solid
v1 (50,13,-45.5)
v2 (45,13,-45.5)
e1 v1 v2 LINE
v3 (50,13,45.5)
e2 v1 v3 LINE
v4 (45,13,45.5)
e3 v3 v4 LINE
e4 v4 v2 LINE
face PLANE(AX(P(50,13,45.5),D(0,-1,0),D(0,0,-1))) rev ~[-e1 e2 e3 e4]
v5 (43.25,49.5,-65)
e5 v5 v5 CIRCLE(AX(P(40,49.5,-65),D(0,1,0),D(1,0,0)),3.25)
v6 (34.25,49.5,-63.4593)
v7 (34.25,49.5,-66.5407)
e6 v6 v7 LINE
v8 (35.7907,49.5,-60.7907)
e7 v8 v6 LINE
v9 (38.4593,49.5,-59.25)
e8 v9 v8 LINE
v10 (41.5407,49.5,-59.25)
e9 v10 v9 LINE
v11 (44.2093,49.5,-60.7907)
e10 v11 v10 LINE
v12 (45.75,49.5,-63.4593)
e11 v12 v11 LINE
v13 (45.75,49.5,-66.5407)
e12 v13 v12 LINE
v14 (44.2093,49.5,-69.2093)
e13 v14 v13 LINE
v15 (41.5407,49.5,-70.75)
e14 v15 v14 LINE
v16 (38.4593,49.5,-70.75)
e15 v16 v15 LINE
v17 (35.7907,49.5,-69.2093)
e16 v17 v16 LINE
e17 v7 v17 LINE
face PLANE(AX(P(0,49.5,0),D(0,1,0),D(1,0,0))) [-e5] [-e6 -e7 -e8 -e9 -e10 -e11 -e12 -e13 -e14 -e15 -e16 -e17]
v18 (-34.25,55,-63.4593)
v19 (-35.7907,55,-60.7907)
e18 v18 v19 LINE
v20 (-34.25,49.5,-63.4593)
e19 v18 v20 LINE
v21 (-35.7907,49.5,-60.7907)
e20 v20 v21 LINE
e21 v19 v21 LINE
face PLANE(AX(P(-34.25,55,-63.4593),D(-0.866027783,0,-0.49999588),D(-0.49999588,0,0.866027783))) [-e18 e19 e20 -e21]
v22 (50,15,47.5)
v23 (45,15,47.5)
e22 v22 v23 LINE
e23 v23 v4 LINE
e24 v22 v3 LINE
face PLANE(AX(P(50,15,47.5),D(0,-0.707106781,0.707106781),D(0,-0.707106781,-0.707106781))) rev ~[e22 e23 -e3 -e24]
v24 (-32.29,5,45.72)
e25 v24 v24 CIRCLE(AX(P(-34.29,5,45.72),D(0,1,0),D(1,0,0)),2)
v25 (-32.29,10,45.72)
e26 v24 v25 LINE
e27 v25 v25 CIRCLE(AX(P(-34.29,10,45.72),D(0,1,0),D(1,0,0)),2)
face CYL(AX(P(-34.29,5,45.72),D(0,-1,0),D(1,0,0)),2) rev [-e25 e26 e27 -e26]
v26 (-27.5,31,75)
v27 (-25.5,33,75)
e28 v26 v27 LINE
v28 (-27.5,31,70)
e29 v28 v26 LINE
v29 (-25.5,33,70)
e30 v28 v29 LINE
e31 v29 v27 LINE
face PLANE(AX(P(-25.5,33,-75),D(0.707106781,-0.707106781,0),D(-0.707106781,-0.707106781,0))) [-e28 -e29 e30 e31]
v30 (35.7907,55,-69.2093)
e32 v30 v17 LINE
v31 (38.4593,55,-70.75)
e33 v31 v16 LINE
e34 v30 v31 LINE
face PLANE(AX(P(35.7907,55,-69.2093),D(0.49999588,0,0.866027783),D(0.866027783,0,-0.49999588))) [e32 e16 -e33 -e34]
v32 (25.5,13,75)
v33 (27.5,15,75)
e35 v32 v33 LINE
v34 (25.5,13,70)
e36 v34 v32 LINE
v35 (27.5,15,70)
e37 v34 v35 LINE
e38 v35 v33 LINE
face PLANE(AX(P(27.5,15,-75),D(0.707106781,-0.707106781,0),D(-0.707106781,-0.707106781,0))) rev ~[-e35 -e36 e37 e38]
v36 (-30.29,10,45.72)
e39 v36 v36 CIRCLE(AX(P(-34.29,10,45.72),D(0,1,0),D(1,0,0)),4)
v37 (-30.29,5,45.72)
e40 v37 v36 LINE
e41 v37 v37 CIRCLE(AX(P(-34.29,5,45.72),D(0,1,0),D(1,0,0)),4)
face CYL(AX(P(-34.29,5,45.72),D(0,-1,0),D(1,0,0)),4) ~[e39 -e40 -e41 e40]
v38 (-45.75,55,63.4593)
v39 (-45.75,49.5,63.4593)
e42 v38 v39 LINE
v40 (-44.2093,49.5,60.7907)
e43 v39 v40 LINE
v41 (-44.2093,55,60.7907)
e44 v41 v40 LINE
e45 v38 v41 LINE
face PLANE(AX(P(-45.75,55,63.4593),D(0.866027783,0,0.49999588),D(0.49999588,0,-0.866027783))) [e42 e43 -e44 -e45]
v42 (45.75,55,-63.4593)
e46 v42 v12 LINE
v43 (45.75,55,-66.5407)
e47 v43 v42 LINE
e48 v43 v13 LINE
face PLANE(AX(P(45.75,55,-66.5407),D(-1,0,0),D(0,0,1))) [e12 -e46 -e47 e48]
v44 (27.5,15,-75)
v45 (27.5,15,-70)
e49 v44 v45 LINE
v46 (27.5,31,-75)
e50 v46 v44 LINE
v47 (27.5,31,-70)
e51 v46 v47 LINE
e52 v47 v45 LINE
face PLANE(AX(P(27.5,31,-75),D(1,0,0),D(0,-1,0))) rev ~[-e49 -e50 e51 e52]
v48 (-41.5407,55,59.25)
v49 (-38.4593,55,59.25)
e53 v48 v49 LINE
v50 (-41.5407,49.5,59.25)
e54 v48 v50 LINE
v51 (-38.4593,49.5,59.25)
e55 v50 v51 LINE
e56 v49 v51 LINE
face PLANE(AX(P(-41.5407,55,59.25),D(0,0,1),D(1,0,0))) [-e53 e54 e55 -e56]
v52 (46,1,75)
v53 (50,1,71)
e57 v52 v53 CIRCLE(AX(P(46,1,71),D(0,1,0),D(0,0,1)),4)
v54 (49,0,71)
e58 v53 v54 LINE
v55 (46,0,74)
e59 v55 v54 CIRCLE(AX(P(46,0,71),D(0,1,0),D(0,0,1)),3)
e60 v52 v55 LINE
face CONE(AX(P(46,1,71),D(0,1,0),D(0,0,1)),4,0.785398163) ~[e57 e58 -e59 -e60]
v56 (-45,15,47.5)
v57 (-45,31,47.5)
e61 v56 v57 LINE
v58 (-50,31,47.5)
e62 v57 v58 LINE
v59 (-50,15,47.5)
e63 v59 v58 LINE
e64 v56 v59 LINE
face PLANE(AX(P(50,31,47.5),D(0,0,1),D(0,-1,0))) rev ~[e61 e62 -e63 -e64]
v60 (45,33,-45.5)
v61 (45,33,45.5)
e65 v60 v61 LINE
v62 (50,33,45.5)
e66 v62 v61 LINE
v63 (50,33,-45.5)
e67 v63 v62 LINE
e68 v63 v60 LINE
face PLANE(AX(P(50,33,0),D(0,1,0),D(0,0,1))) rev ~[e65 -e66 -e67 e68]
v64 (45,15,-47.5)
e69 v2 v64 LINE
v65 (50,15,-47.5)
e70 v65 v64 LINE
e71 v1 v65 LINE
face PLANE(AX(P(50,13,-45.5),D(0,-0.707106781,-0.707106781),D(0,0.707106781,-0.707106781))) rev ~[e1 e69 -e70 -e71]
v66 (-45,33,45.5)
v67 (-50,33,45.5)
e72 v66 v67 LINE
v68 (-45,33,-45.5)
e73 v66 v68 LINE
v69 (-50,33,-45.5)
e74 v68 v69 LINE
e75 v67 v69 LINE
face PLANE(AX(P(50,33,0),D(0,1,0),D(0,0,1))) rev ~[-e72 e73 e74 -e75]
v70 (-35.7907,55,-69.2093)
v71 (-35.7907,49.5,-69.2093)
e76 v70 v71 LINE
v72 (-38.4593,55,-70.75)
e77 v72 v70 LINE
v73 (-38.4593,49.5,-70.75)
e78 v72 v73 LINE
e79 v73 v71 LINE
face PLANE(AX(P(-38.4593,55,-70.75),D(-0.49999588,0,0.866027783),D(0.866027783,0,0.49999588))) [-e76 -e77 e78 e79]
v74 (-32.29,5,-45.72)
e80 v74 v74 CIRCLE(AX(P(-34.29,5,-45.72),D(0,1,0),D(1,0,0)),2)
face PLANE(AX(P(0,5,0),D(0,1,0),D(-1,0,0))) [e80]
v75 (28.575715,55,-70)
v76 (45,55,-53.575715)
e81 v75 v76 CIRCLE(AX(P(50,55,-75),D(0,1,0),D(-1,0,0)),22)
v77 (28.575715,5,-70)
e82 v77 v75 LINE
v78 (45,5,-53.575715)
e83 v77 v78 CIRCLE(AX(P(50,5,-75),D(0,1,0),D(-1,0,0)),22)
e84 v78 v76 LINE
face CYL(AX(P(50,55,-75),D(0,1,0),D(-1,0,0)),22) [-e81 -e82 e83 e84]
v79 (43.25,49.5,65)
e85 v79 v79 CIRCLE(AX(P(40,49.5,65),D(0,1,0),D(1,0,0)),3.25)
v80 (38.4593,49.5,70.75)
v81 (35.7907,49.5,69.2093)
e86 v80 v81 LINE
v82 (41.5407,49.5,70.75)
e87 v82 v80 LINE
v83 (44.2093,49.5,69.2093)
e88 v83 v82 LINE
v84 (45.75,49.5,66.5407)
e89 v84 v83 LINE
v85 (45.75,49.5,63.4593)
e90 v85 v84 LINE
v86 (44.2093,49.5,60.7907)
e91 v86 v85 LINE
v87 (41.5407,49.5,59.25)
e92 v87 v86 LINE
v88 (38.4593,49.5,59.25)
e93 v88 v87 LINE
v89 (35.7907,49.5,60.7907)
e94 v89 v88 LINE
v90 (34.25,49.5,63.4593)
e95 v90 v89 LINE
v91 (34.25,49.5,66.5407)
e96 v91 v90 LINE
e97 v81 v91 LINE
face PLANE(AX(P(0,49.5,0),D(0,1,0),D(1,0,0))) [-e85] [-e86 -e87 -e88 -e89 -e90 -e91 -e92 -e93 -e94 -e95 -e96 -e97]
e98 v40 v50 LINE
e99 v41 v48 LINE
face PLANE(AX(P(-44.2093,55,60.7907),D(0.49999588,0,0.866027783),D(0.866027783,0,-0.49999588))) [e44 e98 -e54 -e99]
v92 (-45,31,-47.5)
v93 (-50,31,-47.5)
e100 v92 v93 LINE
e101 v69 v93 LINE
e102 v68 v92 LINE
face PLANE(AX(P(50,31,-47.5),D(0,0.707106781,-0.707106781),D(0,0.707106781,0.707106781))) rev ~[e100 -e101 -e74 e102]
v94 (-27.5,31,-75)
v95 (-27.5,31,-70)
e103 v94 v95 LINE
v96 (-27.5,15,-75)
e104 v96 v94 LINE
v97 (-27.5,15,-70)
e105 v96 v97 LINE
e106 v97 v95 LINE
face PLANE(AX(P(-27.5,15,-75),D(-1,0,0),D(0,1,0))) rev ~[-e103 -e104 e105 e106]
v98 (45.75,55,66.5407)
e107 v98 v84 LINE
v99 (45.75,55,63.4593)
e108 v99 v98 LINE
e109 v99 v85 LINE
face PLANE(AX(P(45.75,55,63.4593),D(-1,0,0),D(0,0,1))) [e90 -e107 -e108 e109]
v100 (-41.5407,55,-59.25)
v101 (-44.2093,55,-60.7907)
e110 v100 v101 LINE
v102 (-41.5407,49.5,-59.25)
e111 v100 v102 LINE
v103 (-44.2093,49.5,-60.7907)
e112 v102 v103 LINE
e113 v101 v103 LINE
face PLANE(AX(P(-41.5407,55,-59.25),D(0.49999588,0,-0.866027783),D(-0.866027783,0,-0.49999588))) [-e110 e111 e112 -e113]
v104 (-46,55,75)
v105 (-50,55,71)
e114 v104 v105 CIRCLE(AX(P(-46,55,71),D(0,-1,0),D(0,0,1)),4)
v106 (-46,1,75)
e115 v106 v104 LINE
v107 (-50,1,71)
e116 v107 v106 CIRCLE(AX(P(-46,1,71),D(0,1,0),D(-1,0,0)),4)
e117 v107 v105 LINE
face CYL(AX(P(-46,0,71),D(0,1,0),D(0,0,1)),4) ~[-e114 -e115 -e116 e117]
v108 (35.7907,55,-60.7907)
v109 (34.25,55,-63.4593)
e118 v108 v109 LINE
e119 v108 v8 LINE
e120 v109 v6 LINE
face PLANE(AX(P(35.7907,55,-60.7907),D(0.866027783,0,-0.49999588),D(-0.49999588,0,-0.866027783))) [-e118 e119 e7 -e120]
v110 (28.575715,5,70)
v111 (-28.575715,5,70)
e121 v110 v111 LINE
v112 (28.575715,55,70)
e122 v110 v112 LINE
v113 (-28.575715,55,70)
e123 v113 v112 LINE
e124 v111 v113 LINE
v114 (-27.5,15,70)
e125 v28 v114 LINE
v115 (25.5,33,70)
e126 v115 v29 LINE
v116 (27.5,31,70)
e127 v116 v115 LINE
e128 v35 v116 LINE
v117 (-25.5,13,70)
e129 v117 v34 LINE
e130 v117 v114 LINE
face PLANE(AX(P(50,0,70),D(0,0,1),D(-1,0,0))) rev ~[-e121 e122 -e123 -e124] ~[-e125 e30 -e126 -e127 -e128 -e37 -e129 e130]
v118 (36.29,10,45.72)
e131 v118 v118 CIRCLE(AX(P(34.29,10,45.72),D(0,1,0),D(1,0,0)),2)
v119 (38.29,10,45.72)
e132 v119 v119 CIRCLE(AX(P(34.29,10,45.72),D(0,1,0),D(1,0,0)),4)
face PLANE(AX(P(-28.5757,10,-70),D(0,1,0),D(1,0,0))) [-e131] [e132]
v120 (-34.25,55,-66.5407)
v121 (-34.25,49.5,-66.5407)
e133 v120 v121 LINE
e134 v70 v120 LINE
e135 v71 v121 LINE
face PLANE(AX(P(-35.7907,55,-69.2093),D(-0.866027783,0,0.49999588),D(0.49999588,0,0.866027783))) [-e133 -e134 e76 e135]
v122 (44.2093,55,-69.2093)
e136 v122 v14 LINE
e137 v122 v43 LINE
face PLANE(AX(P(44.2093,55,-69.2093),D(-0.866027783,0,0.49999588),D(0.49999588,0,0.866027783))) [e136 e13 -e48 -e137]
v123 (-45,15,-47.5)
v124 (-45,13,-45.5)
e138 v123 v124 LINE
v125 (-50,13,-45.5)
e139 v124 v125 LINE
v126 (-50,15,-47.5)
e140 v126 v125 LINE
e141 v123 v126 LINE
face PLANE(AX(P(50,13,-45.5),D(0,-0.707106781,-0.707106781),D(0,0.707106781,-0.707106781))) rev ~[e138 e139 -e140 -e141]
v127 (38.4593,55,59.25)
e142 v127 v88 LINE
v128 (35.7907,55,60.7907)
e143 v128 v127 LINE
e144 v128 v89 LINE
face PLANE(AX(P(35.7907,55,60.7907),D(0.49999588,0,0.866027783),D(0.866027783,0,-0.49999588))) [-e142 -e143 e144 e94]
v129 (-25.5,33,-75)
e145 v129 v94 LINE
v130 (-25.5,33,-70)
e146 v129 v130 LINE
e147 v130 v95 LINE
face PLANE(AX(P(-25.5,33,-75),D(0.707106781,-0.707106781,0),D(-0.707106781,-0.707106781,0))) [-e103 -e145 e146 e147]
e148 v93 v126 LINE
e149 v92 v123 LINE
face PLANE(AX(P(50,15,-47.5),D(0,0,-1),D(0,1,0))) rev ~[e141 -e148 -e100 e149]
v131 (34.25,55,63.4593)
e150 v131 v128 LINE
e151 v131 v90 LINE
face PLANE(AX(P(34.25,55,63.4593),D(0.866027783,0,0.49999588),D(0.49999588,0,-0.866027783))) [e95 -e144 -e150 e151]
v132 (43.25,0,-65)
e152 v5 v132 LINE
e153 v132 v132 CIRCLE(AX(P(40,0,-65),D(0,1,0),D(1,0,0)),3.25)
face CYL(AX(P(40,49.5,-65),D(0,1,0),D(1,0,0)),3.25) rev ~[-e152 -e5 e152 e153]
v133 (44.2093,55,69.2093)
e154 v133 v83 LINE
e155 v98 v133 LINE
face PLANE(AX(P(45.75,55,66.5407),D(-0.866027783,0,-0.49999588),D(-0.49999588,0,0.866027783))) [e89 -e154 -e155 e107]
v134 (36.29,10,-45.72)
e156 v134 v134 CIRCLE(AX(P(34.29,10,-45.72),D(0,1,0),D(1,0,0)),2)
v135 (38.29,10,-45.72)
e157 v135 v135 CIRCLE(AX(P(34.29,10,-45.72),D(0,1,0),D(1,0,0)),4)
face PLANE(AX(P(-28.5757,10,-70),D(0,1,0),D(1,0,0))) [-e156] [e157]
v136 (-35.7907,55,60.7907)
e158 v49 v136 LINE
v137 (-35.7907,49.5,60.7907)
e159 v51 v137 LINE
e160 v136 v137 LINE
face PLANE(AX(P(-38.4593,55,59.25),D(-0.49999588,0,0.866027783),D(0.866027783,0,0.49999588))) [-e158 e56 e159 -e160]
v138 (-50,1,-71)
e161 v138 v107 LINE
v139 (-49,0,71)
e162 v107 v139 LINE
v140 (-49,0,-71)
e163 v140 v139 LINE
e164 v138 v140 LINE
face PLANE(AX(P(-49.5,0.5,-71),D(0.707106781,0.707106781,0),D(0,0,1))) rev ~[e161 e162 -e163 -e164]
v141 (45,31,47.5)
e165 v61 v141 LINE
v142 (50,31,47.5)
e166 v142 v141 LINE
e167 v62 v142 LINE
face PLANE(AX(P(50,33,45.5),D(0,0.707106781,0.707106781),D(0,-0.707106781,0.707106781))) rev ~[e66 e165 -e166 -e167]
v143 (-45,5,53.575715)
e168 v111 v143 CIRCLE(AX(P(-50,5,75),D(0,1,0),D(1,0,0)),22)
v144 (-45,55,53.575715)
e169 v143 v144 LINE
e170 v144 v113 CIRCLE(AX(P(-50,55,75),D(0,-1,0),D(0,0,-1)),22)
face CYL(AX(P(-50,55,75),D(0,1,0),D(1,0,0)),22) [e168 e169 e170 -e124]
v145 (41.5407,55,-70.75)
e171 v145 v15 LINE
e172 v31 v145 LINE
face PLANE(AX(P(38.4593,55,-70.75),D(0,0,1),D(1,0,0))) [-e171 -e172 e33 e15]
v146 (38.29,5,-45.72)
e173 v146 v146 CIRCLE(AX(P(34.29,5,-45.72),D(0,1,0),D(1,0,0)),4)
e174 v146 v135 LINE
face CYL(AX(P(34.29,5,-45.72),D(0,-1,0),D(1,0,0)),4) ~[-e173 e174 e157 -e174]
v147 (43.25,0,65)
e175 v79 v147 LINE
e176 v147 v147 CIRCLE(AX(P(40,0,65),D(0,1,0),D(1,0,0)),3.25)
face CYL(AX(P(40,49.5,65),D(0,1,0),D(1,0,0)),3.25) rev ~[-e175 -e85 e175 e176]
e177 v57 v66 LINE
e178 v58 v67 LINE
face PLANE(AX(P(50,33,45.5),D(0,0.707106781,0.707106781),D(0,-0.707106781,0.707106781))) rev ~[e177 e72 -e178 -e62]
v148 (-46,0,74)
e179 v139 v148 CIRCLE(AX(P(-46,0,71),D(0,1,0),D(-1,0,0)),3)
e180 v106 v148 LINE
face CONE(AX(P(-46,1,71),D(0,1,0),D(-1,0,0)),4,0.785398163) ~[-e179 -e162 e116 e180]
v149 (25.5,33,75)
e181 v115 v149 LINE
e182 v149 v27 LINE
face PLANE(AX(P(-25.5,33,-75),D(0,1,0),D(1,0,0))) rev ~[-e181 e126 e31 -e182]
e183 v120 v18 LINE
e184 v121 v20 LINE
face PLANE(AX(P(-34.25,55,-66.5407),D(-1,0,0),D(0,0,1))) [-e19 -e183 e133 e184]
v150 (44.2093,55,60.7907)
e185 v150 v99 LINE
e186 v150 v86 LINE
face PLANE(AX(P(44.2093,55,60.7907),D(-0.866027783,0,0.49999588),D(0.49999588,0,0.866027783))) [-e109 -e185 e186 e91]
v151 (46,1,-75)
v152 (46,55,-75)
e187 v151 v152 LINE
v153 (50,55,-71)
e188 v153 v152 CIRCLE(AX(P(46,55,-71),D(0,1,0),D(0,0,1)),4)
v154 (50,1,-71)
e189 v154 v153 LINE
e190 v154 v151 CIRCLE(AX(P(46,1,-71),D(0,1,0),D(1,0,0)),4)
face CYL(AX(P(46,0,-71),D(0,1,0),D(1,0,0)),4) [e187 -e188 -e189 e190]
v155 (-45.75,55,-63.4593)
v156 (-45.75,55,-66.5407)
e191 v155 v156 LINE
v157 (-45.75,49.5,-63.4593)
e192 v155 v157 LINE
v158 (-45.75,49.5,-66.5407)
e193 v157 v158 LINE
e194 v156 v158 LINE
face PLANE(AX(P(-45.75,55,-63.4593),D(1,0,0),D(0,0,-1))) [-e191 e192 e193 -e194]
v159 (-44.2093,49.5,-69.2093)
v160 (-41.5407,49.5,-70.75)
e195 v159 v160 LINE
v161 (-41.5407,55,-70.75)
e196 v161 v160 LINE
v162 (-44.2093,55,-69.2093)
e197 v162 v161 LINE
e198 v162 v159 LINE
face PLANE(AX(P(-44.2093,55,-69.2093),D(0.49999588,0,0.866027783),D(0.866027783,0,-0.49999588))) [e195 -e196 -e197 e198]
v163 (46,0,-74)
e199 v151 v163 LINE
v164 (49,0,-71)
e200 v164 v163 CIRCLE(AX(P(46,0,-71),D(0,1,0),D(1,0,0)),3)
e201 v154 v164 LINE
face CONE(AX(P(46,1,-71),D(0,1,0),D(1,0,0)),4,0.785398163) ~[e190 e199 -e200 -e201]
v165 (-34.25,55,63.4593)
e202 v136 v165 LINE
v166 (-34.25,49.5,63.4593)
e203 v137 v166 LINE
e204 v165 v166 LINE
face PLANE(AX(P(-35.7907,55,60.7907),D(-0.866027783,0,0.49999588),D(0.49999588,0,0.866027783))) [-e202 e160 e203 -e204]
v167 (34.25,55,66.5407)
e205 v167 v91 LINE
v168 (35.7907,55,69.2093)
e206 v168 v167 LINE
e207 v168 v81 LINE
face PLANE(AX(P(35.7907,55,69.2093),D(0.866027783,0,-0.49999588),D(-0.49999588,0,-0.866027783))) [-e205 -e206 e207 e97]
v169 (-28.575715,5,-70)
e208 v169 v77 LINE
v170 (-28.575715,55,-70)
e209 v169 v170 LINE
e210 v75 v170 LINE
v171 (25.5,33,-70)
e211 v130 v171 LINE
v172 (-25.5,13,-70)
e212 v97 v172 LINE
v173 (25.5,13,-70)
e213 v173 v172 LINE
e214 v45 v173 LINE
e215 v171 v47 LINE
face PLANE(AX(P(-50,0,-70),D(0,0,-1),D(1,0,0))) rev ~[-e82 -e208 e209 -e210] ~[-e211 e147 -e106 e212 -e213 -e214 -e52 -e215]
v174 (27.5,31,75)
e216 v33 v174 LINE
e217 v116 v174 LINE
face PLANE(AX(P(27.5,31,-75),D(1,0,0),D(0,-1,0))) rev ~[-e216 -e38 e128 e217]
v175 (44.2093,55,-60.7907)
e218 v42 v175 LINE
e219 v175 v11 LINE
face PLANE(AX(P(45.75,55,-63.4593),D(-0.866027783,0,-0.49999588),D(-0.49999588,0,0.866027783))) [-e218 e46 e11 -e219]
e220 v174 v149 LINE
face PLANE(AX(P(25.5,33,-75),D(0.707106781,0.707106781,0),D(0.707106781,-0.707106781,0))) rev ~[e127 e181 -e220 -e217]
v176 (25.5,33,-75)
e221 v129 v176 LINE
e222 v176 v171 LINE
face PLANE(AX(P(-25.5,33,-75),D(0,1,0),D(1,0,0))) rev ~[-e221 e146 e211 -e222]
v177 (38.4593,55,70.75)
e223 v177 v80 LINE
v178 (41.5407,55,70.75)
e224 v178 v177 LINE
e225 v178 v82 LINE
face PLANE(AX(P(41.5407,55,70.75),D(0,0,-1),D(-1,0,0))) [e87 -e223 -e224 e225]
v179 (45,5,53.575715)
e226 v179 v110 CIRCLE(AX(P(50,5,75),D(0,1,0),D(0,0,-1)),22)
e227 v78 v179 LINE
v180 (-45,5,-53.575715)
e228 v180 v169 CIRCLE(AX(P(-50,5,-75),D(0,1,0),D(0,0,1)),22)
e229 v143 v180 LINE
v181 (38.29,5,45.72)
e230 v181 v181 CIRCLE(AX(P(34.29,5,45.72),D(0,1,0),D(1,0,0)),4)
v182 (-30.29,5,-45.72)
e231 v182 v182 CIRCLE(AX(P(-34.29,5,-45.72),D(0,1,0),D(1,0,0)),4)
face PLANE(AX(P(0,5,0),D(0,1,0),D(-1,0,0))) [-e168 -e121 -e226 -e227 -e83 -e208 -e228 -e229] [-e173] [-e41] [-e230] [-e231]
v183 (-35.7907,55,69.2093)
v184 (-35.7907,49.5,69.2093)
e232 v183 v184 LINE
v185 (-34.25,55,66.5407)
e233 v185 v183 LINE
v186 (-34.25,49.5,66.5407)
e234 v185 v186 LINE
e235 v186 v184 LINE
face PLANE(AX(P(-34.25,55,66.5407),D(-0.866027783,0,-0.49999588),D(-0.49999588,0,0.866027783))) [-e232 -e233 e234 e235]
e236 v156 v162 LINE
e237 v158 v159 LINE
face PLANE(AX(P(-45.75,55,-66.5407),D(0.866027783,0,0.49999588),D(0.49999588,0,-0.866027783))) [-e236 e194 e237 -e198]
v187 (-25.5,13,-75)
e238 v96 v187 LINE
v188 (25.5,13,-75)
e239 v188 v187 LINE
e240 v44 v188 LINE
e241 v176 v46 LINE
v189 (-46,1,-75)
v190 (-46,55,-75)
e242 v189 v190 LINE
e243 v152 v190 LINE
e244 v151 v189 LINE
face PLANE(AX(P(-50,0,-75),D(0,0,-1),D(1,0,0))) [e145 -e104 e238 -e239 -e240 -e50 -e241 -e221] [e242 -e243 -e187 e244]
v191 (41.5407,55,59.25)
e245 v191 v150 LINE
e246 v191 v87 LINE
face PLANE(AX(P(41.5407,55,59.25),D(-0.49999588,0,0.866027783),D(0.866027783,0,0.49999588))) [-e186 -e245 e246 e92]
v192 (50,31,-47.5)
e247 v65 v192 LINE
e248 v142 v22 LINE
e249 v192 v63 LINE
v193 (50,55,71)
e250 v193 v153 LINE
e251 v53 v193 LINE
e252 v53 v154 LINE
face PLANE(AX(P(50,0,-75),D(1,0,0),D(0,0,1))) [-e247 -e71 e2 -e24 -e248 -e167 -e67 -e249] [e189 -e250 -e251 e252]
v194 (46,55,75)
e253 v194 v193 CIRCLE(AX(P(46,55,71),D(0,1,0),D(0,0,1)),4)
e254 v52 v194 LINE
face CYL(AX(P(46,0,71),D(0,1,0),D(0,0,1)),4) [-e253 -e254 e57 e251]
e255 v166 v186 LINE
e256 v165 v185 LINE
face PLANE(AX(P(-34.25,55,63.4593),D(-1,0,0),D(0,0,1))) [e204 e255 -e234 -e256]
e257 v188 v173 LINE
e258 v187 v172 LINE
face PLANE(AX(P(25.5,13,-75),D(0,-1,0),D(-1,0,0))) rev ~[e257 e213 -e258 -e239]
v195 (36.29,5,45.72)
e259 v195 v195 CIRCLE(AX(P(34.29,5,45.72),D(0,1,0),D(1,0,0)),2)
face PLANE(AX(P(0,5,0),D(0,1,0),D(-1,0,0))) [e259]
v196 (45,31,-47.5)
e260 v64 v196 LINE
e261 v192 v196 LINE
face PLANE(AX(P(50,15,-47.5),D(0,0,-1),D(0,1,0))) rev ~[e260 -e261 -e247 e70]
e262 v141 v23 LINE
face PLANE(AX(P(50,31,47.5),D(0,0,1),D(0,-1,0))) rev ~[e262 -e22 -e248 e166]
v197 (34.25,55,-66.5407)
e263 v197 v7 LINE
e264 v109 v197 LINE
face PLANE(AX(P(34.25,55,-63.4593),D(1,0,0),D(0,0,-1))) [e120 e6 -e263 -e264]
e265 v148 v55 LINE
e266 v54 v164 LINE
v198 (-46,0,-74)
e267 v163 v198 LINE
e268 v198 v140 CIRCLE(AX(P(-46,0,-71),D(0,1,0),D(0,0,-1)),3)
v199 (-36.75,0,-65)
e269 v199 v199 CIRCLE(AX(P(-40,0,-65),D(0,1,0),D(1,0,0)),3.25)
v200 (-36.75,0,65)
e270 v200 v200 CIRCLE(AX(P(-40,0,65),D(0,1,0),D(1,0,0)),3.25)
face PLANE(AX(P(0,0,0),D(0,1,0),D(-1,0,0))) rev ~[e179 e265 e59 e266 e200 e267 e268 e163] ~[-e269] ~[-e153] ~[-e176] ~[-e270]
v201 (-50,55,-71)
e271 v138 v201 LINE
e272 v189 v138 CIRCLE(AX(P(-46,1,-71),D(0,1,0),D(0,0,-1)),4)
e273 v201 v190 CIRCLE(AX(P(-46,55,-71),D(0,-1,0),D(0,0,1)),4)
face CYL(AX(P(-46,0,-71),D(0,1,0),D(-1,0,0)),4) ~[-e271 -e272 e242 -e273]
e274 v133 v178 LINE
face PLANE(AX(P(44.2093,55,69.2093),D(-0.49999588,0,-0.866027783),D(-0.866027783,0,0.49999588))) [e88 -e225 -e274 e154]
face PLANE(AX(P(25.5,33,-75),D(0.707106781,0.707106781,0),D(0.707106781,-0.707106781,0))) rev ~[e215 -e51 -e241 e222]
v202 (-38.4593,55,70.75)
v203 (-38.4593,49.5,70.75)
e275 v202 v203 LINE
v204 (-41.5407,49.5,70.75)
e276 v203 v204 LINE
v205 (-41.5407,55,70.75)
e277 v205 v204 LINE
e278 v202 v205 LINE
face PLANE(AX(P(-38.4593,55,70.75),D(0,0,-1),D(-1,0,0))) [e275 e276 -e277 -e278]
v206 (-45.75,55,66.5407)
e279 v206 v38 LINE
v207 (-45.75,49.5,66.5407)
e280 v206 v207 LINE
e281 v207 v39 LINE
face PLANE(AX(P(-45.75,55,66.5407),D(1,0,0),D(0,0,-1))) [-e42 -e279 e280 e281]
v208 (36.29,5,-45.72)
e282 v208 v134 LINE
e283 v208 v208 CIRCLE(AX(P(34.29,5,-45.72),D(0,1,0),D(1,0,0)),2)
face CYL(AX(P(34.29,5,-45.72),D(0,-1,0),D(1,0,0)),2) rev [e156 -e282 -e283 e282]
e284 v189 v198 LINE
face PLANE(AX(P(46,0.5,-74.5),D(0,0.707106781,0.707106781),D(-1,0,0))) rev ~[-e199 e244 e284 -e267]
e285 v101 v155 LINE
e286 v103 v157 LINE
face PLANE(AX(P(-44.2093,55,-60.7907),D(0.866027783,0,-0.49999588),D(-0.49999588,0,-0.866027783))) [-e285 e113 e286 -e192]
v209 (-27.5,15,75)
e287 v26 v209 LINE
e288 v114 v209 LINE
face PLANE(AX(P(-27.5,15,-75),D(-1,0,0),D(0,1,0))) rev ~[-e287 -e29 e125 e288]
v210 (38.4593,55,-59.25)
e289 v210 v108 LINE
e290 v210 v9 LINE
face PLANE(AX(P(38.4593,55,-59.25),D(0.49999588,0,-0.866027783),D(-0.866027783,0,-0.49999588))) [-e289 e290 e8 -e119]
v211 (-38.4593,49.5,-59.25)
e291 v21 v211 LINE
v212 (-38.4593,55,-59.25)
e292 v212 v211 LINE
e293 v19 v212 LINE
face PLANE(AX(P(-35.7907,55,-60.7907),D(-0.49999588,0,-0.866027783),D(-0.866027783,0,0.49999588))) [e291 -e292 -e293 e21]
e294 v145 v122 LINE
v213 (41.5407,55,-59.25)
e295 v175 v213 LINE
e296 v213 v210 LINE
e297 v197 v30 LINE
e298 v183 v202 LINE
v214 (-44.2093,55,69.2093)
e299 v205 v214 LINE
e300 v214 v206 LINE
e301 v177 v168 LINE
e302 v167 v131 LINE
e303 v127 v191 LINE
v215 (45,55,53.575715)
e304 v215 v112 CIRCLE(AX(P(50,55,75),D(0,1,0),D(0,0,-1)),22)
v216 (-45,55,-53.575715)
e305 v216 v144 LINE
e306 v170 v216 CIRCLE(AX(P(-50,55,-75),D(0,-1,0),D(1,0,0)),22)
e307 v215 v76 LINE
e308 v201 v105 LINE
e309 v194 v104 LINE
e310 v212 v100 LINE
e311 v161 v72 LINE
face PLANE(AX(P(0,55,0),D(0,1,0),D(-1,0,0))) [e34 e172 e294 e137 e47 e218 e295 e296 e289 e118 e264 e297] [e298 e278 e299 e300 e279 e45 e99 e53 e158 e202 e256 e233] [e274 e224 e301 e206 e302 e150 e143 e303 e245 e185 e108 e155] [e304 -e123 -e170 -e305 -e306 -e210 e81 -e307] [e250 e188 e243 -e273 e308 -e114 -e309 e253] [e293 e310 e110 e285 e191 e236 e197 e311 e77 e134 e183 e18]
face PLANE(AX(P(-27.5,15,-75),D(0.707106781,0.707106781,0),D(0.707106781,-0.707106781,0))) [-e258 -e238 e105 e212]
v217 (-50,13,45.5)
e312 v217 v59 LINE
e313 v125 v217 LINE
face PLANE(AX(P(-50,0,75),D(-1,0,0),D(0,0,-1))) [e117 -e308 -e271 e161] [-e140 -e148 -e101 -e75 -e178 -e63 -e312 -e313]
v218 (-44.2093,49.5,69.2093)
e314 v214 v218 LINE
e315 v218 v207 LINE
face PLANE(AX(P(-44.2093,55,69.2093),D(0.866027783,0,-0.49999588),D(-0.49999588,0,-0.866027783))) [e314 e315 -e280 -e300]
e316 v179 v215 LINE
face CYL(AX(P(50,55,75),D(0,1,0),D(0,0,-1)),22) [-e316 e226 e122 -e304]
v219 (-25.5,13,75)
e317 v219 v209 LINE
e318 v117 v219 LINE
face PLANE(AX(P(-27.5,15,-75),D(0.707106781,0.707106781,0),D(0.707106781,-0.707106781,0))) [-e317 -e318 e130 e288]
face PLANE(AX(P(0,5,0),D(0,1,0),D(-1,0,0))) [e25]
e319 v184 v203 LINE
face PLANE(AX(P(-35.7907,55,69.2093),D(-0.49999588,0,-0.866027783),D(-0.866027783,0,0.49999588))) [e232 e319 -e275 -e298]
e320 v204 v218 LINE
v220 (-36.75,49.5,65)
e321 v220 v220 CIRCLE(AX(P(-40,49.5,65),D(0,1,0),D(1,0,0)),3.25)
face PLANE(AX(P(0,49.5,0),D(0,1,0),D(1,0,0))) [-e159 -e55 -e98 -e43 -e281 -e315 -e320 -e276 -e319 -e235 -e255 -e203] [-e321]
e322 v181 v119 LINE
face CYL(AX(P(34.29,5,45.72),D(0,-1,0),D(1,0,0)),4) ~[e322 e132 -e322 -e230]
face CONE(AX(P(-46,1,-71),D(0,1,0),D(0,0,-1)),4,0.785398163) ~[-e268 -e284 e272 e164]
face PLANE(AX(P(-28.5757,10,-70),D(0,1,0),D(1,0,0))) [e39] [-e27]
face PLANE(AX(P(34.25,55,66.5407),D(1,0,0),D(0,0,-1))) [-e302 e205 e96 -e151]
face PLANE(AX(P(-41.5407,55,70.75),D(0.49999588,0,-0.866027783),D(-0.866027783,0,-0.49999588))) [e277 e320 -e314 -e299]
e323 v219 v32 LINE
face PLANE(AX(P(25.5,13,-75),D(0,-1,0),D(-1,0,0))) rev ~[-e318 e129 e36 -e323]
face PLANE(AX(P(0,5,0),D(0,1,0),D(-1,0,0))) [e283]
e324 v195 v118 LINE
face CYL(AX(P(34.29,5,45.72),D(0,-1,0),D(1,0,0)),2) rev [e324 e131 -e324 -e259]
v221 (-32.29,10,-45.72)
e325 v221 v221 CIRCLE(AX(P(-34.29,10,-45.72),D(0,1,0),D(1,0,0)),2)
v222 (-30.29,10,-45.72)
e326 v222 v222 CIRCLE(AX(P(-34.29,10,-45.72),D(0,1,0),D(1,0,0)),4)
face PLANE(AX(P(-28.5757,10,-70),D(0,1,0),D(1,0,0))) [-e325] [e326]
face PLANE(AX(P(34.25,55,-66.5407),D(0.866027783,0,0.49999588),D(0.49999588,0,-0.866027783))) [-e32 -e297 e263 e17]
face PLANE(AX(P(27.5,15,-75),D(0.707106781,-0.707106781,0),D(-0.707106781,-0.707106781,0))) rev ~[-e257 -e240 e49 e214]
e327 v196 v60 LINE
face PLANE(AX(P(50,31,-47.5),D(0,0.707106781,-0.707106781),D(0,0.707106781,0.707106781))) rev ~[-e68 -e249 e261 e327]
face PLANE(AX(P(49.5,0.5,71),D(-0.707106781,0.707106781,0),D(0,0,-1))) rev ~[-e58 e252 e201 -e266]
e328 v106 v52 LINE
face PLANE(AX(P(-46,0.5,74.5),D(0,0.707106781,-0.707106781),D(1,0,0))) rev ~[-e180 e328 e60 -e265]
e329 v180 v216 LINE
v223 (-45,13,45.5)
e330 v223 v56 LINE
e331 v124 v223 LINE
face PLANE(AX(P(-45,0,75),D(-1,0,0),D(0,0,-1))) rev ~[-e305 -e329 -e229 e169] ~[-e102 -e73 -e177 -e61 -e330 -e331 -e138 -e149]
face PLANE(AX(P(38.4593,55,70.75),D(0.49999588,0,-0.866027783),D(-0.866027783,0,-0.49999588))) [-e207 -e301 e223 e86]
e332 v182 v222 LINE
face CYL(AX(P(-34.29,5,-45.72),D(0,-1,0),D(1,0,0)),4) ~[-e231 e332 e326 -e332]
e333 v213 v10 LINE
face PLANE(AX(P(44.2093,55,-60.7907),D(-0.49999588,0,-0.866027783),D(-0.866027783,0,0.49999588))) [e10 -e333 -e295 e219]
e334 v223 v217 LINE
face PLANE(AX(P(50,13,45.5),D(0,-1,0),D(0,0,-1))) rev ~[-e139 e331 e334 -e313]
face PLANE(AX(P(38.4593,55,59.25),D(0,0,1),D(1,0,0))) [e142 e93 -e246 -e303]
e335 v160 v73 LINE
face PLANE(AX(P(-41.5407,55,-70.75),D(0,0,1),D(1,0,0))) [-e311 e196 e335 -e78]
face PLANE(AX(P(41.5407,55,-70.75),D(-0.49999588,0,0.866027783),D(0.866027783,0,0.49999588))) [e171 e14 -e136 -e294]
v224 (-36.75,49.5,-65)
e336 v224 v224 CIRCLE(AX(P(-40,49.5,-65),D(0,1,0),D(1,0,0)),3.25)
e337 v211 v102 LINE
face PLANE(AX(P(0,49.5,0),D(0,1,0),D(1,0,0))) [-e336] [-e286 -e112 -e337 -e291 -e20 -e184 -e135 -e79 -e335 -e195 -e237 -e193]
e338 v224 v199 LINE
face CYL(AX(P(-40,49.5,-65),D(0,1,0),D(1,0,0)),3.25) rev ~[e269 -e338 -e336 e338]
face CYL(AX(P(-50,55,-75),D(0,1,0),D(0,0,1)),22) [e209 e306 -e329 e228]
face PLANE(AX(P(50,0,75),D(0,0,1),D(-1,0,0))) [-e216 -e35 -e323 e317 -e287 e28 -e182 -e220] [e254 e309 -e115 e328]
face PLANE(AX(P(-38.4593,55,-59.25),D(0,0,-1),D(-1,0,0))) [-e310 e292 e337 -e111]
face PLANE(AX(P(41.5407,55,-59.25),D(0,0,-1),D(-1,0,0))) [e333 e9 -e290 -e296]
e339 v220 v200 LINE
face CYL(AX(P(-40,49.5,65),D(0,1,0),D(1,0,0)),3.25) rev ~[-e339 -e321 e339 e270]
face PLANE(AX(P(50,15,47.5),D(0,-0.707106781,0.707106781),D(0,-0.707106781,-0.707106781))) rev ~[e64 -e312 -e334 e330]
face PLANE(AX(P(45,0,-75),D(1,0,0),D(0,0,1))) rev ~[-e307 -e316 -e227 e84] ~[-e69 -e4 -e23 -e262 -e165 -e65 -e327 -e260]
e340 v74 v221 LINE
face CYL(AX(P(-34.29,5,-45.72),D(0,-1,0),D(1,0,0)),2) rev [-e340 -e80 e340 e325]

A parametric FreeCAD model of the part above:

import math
import FreeCAD as App
import Part
import Sketcher

V = App.Vector
Q = App.Units.Quantity


def edges_at(feature, points):
    """Names of the edges that pass closest to the given points."""
    edges = feature.Shape.Edges
    near = lambda p: min(range(len(edges)), key=lambda i: edges[i].distToShape(Part.Vertex(*p))[0])
    return sorted({f"Edge{near(p) + 1}" for p in points})


def faces_at(feature, points):
    """Names of the faces that lie closest to the given points."""
    faces = feature.Shape.Faces
    near = lambda p: min(range(len(faces)), key=lambda i: faces[i].distToShape(Part.Vertex(*p))[0])
    return sorted({f"Face{near(p) + 1}" for p in points})

doc = App.newDocument("Part")
body = doc.addObject("PartDesign::Body", "Body")

# Sketch on XZ plane
sketch1 = doc.addObject("Sketcher::SketchObject", "Sketch")
body.addObject(sketch1)
sketch1.AttachmentSupport = (doc.XZ_Plane, [""])
sketch1.MapMode = "FlatFace"
sketch1.addGeometry([
    Part.LineSegment(V(-50, 75, 0), V(50, 75, 0)),
    Part.LineSegment(V(50, 75, 0), V(50, -75, 0)),
    Part.LineSegment(V(50, -75, 0), V(-50, -75, 0)),
    Part.LineSegment(V(-50, -75, 0), V(-50, 75, 0)),
], False)
sketch1.addConstraint([
    Sketcher.Constraint("Coincident", 0, 2, 1, 1),
    Sketcher.Constraint("Coincident", 1, 2, 2, 1),
    Sketcher.Constraint("Coincident", 2, 2, 3, 1),
    Sketcher.Constraint("Coincident", 3, 2, 0, 1),
    Sketcher.Constraint("Horizontal", 0),
    Sketcher.Constraint("Vertical", 1),
    Sketcher.Constraint("Horizontal", 2),
    Sketcher.Constraint("Vertical", 3),
    Sketcher.Constraint("Symmetric", 0, 2, 2, 2, -1, 1),
    Sketcher.Constraint("DistanceX", 0, 1, 0, 2, 100.0),
    Sketcher.Constraint("DistanceY", 1, 2, 1, 1, 150.0),
])
pad1 = doc.addObject("PartDesign::Pad", "Pad")
body.addObject(pad1)
pad1.Profile = sketch1
pad1.Length = 55
pad1.Reversed = True
doc.recompute()

thickness = doc.addObject("PartDesign::Thickness", "Thickness")
body.addObject(thickness)
thickness.Base = (pad1, faces_at(pad1, [(16.667, 55, 25)]))
thickness.Value = 5
thickness.Reversed = True
thickness.Join = "Intersection"

# Sketch on XZ plane
sketch2 = doc.addObject("Sketcher::SketchObject", "Sketch001")
body.addObject(sketch2)
sketch2.AttachmentSupport = (doc.XZ_Plane, [""])
sketch2.MapMode = "FlatFace"
sketch2.AttachmentOffset = App.Placement(V(0, 0, -55), App.Rotation())
sketch2.addGeometry([
    Part.ArcOfCircle(Part.Circle(V(-50, 75, 0), V(0, 0, 1), 22), math.radians(-90), math.radians(0)),  # 0
    Part.LineSegment(V(-50, 53, 0), V(-50, 75, 0)),  # 1
    Part.LineSegment(V(-50, 75, 0), V(-28, 75, 0)),  # 2
    Part.LineSegment(V(50, -75, 0), V(28, -75, 0)),  # 3
    Part.ArcOfCircle(Part.Circle(V(50, -75, 0), V(0, 0, 1), 22), math.radians(90), math.radians(180)),  # 4
    Part.LineSegment(V(50, -53, 0), V(50, -75, 0)),  # 5
    Part.ArcOfCircle(Part.Circle(V(50, 75, 0), V(0, 0, 1), 22), math.radians(180), math.radians(270)),  # 6
    Part.LineSegment(V(28, 75, 0), V(50, 75, 0)),  # 7
    Part.LineSegment(V(50, 75, 0), V(50, 53, 0)),  # 8
    Part.ArcOfCircle(Part.Circle(V(-50, -75, 0), V(0, 0, 1), 22), math.radians(0), math.radians(90)),  # 9
    Part.LineSegment(V(-28, -75, 0), V(-50, -75, 0)),  # 10
    Part.LineSegment(V(-50, -75, 0), V(-50, -53, 0)),  # 11
], False)
sketch2.addConstraint([
    Sketcher.Constraint("Coincident", 0, 1, 1, 1),
    Sketcher.Constraint("Coincident", 1, 2, 2, 1),
    Sketcher.Constraint("Coincident", 2, 2, 0, 2),
    Sketcher.Constraint("Coincident", 3, 2, 4, 2),
    Sketcher.Constraint("Coincident", 4, 1, 5, 1),
    Sketcher.Constraint("Coincident", 5, 2, 3, 1),
    Sketcher.Constraint("Coincident", 6, 1, 7, 1),
    Sketcher.Constraint("Coincident", 7, 2, 8, 1),
    Sketcher.Constraint("Coincident", 8, 2, 6, 2),
    Sketcher.Constraint("Coincident", 9, 1, 10, 1),
    Sketcher.Constraint("Coincident", 10, 2, 11, 1),
    Sketcher.Constraint("Coincident", 11, 2, 9, 2),
    Sketcher.Constraint("Vertical", 1),
    Sketcher.Constraint("Horizontal", 2),
    Sketcher.Constraint("Horizontal", 3),
    Sketcher.Constraint("Vertical", 5),
    Sketcher.Constraint("Horizontal", 7),
    Sketcher.Constraint("Vertical", 8),
    Sketcher.Constraint("Horizontal", 10),
    Sketcher.Constraint("Vertical", 11),
    Sketcher.Constraint("Coincident", 1, 2, 0, 3),
    Sketcher.Constraint("Coincident", 5, 2, 4, 3),
    Sketcher.Constraint("Coincident", 7, 2, 6, 3),
    Sketcher.Constraint("Coincident", 10, 2, 9, 3),
    Sketcher.Constraint("Equal", 0, 4),
    Sketcher.Constraint("Equal", 4, 6),
    Sketcher.Constraint("Equal", 6, 9),
    Sketcher.Constraint("Symmetric", 0, 3, 4, 3, -1, 1),
    Sketcher.Constraint("Symmetric", 6, 3, 9, 3, -1, 1),
    Sketcher.Constraint("Symmetric", 0, 3, 6, 3, -2),
    Sketcher.Constraint("Radius", 0, 22.0),
    Sketcher.Constraint("DistanceX", 0, 3, -1, 1, 50.0),
    Sketcher.Constraint("DistanceY", -1, 1, 0, 3, 75.0),
])
pad2 = doc.addObject("PartDesign::Pad", "Pad001")
body.addObject(pad2)
pad2.Profile = sketch2
pad2.Length = 55

# Sketch on XZ plane
sketch3 = doc.addObject("Sketcher::SketchObject", "Sketch002")
body.addObject(sketch3)
sketch3.AttachmentSupport = (doc.XZ_Plane, [""])
sketch3.MapMode = "FlatFace"
sketch3.AttachmentOffset = App.Placement(V(0, 0, -5), App.Rotation())
sketch3.addGeometry([
    Part.Circle(V(-34.3, 45.7, 0), V(0, 0, 1), 4),  # 0
    Part.Circle(V(-34.3, 45.7, 0), V(0, 0, 1), 2),  # 1
    Part.Circle(V(-34.3, -45.7, 0), V(0, 0, 1), 4),  # 2
    Part.Circle(V(-34.3, -45.7, 0), V(0, 0, 1), 2),  # 3
    Part.Circle(V(34.3, -45.7, 0), V(0, 0, 1), 4),  # 4
    Part.Circle(V(34.3, -45.7, 0), V(0, 0, 1), 2),  # 5
    Part.Circle(V(34.3, 45.7, 0), V(0, 0, 1), 4),  # 6
    Part.Circle(V(34.3, 45.7, 0), V(0, 0, 1), 2),  # 7
], False)
sketch3.addConstraint([
    Sketcher.Constraint("Coincident", 1, 3, 0, 3),
    Sketcher.Constraint("Coincident", 3, 3, 2, 3),
    Sketcher.Constraint("Coincident", 5, 3, 4, 3),
    Sketcher.Constraint("Coincident", 7, 3, 6, 3),
    Sketcher.Constraint("Equal", 0, 2),
    Sketcher.Constraint("Equal", 1, 3),
    Sketcher.Constraint("Equal", 2, 4),
    Sketcher.Constraint("Equal", 3, 5),
    Sketcher.Constraint("Equal", 4, 6),
    Sketcher.Constraint("Equal", 5, 7),
    Sketcher.Constraint("Symmetric", 0, 3, 4, 3, -1, 1),
    Sketcher.Constraint("Symmetric", 2, 3, 6, 3, -1, 1),
    Sketcher.Constraint("Symmetric", 2, 3, 4, 3, -2),
    Sketcher.Constraint("Diameter", 0, 8.0),
    Sketcher.Constraint("Diameter", 1, 4.0),
    Sketcher.Constraint("DistanceY", 2, 3, 0, 3, 91.44),
    Sketcher.Constraint("DistanceX", 2, 3, 4, 3, 68.58),
])
pad3 = doc.addObject("PartDesign::Pad", "Pad002")
body.addObject(pad3)
pad3.Profile = sketch3
pad3.Length = 5
pad3.Reversed = True

# Sketch on XY plane
sketch4 = doc.addObject("Sketcher::SketchObject", "Sketch003")
body.addObject(sketch4)
sketch4.AttachmentSupport = (doc.XY_Plane, [""])
sketch4.MapMode = "FlatFace"
sketch4.AttachmentOffset = App.Placement(V(0, 0, -75), App.Rotation())
sketch4.addGeometry([
    Part.LineSegment(V(27.5, 15, 0), V(25.5, 13, 0)),  # 0
    Part.LineSegment(V(25.5, 13, 0), V(-25.5, 13, 0)),  # 1
    Part.LineSegment(V(-25.5, 13, 0), V(-27.5, 15, 0)),  # 2
    Part.LineSegment(V(-27.5, 15, 0), V(-27.5, 31, 0)),  # 3
    Part.LineSegment(V(-27.5, 31, 0), V(-25.5, 33, 0)),  # 4
    Part.LineSegment(V(-25.5, 33, 0), V(25.5, 33, 0)),  # 5
    Part.LineSegment(V(25.5, 33, 0), V(27.5, 31, 0)),  # 6
    Part.LineSegment(V(27.5, 31, 0), V(27.5, 15, 0)),  # 7
], False)
sketch4.addConstraint([
    Sketcher.Constraint("Coincident", 0, 2, 1, 1),
    Sketcher.Constraint("Coincident", 1, 2, 2, 1),
    Sketcher.Constraint("Coincident", 2, 2, 3, 1),
    Sketcher.Constraint("Coincident", 3, 2, 4, 1),
    Sketcher.Constraint("Coincident", 4, 2, 5, 1),
    Sketcher.Constraint("Coincident", 5, 2, 6, 1),
    Sketcher.Constraint("Coincident", 6, 2, 7, 1),
    Sketcher.Constraint("Coincident", 7, 2, 0, 1),
    Sketcher.Constraint("Horizontal", 1),
    Sketcher.Constraint("Vertical", 3),
    Sketcher.Constraint("Horizontal", 5),
    Sketcher.Constraint("Vertical", 7),
    Sketcher.Constraint("Symmetric", 3, 2, 6, 2, -2),
    Sketcher.Constraint("Perpendicular", 0, 2),
    Sketcher.Constraint("Perpendicular", 2, 4),
    Sketcher.Constraint("Perpendicular", 4, 6),
    Sketcher.Constraint("Horizontal", 2, 2, 7, 2),
    Sketcher.Constraint("Vertical", 1, 2, 4, 2),
    Sketcher.Constraint("Vertical", 0, 2, 5, 2),
    Sketcher.Constraint("DistanceX", 2, 2, 1, 2, 2.0),
    Sketcher.Constraint("DistanceY", 1, 2, 4, 2, 20.0),
    Sketcher.Constraint("DistanceX", 3, 2, 6, 2, 55.0),
    Sketcher.Constraint("DistanceY", -1, 1, 0, 2, 13.0),
])
pocket1 = doc.addObject("PartDesign::Pocket", "Pocket")
body.addObject(pocket1)
pocket1.Profile = sketch4
pocket1.Type = "ThroughAll"
pocket1.Reversed = True

# Sketch on YZ plane
sketch5 = doc.addObject("Sketcher::SketchObject", "Sketch004")
body.addObject(sketch5)
sketch5.AttachmentSupport = (doc.YZ_Plane, [""])
sketch5.MapMode = "FlatFace"
sketch5.AttachmentOffset = App.Placement(V(0, 0, 50), App.Rotation())
sketch5.addGeometry([
    Part.LineSegment(V(13, 45.5, 0), V(13, -45.5, 0)),  # 0
    Part.LineSegment(V(13, -45.5, 0), V(15, -47.5, 0)),  # 1
    Part.LineSegment(V(15, -47.5, 0), V(31, -47.5, 0)),  # 2
    Part.LineSegment(V(31, -47.5, 0), V(33, -45.5, 0)),  # 3
    Part.LineSegment(V(33, -45.5, 0), V(33, 45.5, 0)),  # 4
    Part.LineSegment(V(33, 45.5, 0), V(31, 47.5, 0)),  # 5
    Part.LineSegment(V(31, 47.5, 0), V(15, 47.5, 0)),  # 6
    Part.LineSegment(V(15, 47.5, 0), V(13, 45.5, 0)),  # 7
], False)
sketch5.addConstraint([
    Sketcher.Constraint("Coincident", 0, 2, 1, 1),
    Sketcher.Constraint("Coincident", 1, 2, 2, 1),
    Sketcher.Constraint("Coincident", 2, 2, 3, 1),
    Sketcher.Constraint("Coincident", 3, 2, 4, 1),
    Sketcher.Constraint("Coincident", 4, 2, 5, 1),
    Sketcher.Constraint("Coincident", 5, 2, 6, 1),
    Sketcher.Constraint("Coincident", 6, 2, 7, 1),
    Sketcher.Constraint("Coincident", 7, 2, 0, 1),
    Sketcher.Constraint("Vertical", 0),
    Sketcher.Constraint("Horizontal", 2),
    Sketcher.Constraint("Vertical", 4),
    Sketcher.Constraint("Horizontal", 6),
    Sketcher.Constraint("Symmetric", 2, 2, 5, 2, -1),
    Sketcher.Constraint("Perpendicular", 1, 3),
    Sketcher.Constraint("Perpendicular", 3, 5),
    Sketcher.Constraint("Perpendicular", 5, 7),
    Sketcher.Constraint("Horizontal", 0, 2, 3, 2),
    Sketcher.Constraint("Horizontal", 4, 2, 7, 2),
    Sketcher.Constraint("Vertical", 1, 2, 6, 2),
    Sketcher.Constraint("DistanceX", 0, 2, 1, 2, 2.0),
    Sketcher.Constraint("DistanceX", 0, 2, 3, 2, 20.0),
    Sketcher.Constraint("DistanceY", 2, 2, 5, 2, 95.0),
    Sketcher.Constraint("DistanceX", -1, 1, 0, 2, 13.0),
])
pocket2 = doc.addObject("PartDesign::Pocket", "Pocket001")
body.addObject(pocket2)
pocket2.Profile = sketch5
pocket2.Type = "ThroughAll"

# Sketch on XZ plane
sketch6 = doc.addObject("Sketcher::SketchObject", "Sketch005")
body.addObject(sketch6)
sketch6.AttachmentSupport = (doc.XZ_Plane, [""])
sketch6.MapMode = "FlatFace"
sketch6.AttachmentOffset = App.Placement(V(0, 0, -55), App.Rotation())
sketch6.addGeometry([
    Part.LineSegment(V(-45.8, 66.5, 0), V(-44.2, 69.2, 0)),  # 0
    Part.LineSegment(V(-44.2, 69.2, 0), V(-41.5, 70.8, 0)),  # 1
    Part.LineSegment(V(-41.5, 70.8, 0), V(-38.5, 70.8, 0)),  # 2
    Part.LineSegment(V(-38.5, 70.8, 0), V(-35.8, 69.2, 0)),  # 3
    Part.LineSegment(V(-35.8, 69.2, 0), V(-34.2, 66.5, 0)),  # 4
    Part.LineSegment(V(-34.2, 66.5, 0), V(-34.2, 63.5, 0)),  # 5
    Part.LineSegment(V(-34.2, 63.5, 0), V(-35.8, 60.8, 0)),  # 6
    Part.LineSegment(V(-35.8, 60.8, 0), V(-38.5, 59.2, 0)),  # 7
    Part.LineSegment(V(-38.5, 59.2, 0), V(-41.5, 59.2, 0)),  # 8
    Part.LineSegment(V(-41.5, 59.2, 0), V(-44.2, 60.8, 0)),  # 9
    Part.LineSegment(V(-44.2, 60.8, 0), V(-45.8, 63.5, 0)),  # 10
    Part.LineSegment(V(-45.8, 63.5, 0), V(-45.8, 66.5, 0)),  # 11
    Part.LineSegment(V(-38.5, -70.8, 0), V(-41.5, -70.8, 0)),  # 12
    Part.LineSegment(V(-41.5, -70.8, 0), V(-44.2, -69.2, 0)),  # 13
    Part.LineSegment(V(-44.2, -69.2, 0), V(-45.8, -66.5, 0)),  # 14
    Part.LineSegment(V(-45.8, -66.5, 0), V(-45.8, -63.5, 0)),  # 15
    Part.LineSegment(V(-45.8, -63.5, 0), V(-44.2, -60.8, 0)),  # 16
    Part.LineSegment(V(-44.2, -60.8, 0), V(-41.5, -59.2, 0)),  # 17
    Part.LineSegment(V(-41.5, -59.2, 0), V(-38.5, -59.2, 0)),  # 18
    Part.LineSegment(V(-38.5, -59.2, 0), V(-35.8, -60.8, 0)),  # 19
    Part.LineSegment(V(-35.8, -60.8, 0), V(-34.2, -63.5, 0)),  # 20
    Part.LineSegment(V(-34.2, -63.5, 0), V(-34.2, -66.5, 0)),  # 21
    Part.LineSegment(V(-34.2, -66.5, 0), V(-35.8, -69.2, 0)),  # 22
    Part.LineSegment(V(-35.8, -69.2, 0), V(-38.5, -70.8, 0)),  # 23
    Part.LineSegment(V(41.5, 59.2, 0), V(38.5, 59.2, 0)),  # 24
    Part.LineSegment(V(38.5, 59.2, 0), V(35.8, 60.8, 0)),  # 25
    Part.LineSegment(V(35.8, 60.8, 0), V(34.2, 63.5, 0)),  # 26
    Part.LineSegment(V(34.2, 63.5, 0), V(34.2, 66.5, 0)),  # 27
    Part.LineSegment(V(34.2, 66.5, 0), V(35.8, 69.2, 0)),  # 28
    Part.LineSegment(V(35.8, 69.2, 0), V(38.5, 70.8, 0)),  # 29
    Part.LineSegment(V(38.5, 70.8, 0), V(41.5, 70.8, 0)),  # 30
    Part.LineSegment(V(41.5, 70.8, 0), V(44.2, 69.2, 0)),  # 31
    Part.LineSegment(V(44.2, 69.2, 0), V(45.8, 66.5, 0)),  # 32
    Part.LineSegment(V(45.8, 66.5, 0), V(45.8, 63.5, 0)),  # 33
    Part.LineSegment(V(45.8, 63.5, 0), V(44.2, 60.8, 0)),  # 34
    Part.LineSegment(V(44.2, 60.8, 0), V(41.5, 59.2, 0)),  # 35
    Part.LineSegment(V(41.5, -70.8, 0), V(38.5, -70.8, 0)),  # 36
    Part.LineSegment(V(38.5, -70.8, 0), V(35.8, -69.2, 0)),  # 37
    Part.LineSegment(V(35.8, -69.2, 0), V(34.2, -66.5, 0)),  # 38
    Part.LineSegment(V(34.2, -66.5, 0), V(34.2, -63.5, 0)),  # 39
    Part.LineSegment(V(34.2, -63.5, 0), V(35.8, -60.8, 0)),  # 40
    Part.LineSegment(V(35.8, -60.8, 0), V(38.5, -59.2, 0)),  # 41
    Part.LineSegment(V(38.5, -59.2, 0), V(41.5, -59.2, 0)),  # 42
    Part.LineSegment(V(41.5, -59.2, 0), V(44.2, -60.8, 0)),  # 43
    Part.LineSegment(V(44.2, -60.8, 0), V(45.8, -63.5, 0)),  # 44
    Part.LineSegment(V(45.8, -63.5, 0), V(45.8, -66.5, 0)),  # 45
    Part.LineSegment(V(45.8, -66.5, 0), V(44.2, -69.2, 0)),  # 46
    Part.LineSegment(V(44.2, -69.2, 0), V(41.5, -70.8, 0)),  # 47
], False)
sketch6.addConstraint([
    Sketcher.Constraint("Coincident", 0, 2, 1, 1),
    Sketcher.Constraint("Coincident", 1, 2, 2, 1),
    Sketcher.Constraint("Coincident", 2, 2, 3, 1),
    Sketcher.Constraint("Coincident", 3, 2, 4, 1),
    Sketcher.Constraint("Coincident", 4, 2, 5, 1),
    Sketcher.Constraint("Coincident", 5, 2, 6, 1),
    Sketcher.Constraint("Coincident", 6, 2, 7, 1),
    Sketcher.Constraint("Coincident", 7, 2, 8, 1),
    Sketcher.Constraint("Coincident", 8, 2, 9, 1),
    Sketcher.Constraint("Coincident", 9, 2, 10, 1),
    Sketcher.Constraint("Coincident", 10, 2, 11, 1),
    Sketcher.Constraint("Coincident", 11, 2, 0, 1),
    Sketcher.Constraint("Coincident", 12, 2, 13, 1),
    Sketcher.Constraint("Coincident", 13, 2, 14, 1),
    Sketcher.Constraint("Coincident", 14, 2, 15, 1),
    Sketcher.Constraint("Coincident", 15, 2, 16, 1),
    Sketcher.Constraint("Coincident", 16, 2, 17, 1),
    Sketcher.Constraint("Coincident", 17, 2, 18, 1),
    Sketcher.Constraint("Coincident", 18, 2, 19, 1),
    Sketcher.Constraint("Coincident", 19, 2, 20, 1),
    Sketcher.Constraint("Coincident", 20, 2, 21, 1),
    Sketcher.Constraint("Coincident", 21, 2, 22, 1),
    Sketcher.Constraint("Coincident", 22, 2, 23, 1),
    Sketcher.Constraint("Coincident", 23, 2, 12, 1),
    Sketcher.Constraint("Coincident", 24, 2, 25, 1),
    Sketcher.Constraint("Coincident", 25, 2, 26, 1),
    Sketcher.Constraint("Coincident", 26, 2, 27, 1),
    Sketcher.Constraint("Coincident", 27, 2, 28, 1),
    Sketcher.Constraint("Coincident", 28, 2, 29, 1),
    Sketcher.Constraint("Coincident", 29, 2, 30, 1),
    Sketcher.Constraint("Coincident", 30, 2, 31, 1),
    Sketcher.Constraint("Coincident", 31, 2, 32, 1),
    Sketcher.Constraint("Coincident", 32, 2, 33, 1),
    Sketcher.Constraint("Coincident", 33, 2, 34, 1),
    Sketcher.Constraint("Coincident", 34, 2, 35, 1),
    Sketcher.Constraint("Coincident", 35, 2, 24, 1),
    Sketcher.Constraint("Coincident", 36, 2, 37, 1),
    Sketcher.Constraint("Coincident", 37, 2, 38, 1),
    Sketcher.Constraint("Coincident", 38, 2, 39, 1),
    Sketcher.Constraint("Coincident", 39, 2, 40, 1),
    Sketcher.Constraint("Coincident", 40, 2, 41, 1),
    Sketcher.Constraint("Coincident", 41, 2, 42, 1),
    Sketcher.Constraint("Coincident", 42, 2, 43, 1),
    Sketcher.Constraint("Coincident", 43, 2, 44, 1),
    Sketcher.Constraint("Coincident", 44, 2, 45, 1),
    Sketcher.Constraint("Coincident", 45, 2, 46, 1),
    Sketcher.Constraint("Coincident", 46, 2, 47, 1),
    Sketcher.Constraint("Coincident", 47, 2, 36, 1),
    Sketcher.Constraint("Horizontal", 2),
    Sketcher.Constraint("Vertical", 5),
    Sketcher.Constraint("Horizontal", 8),
    Sketcher.Constraint("Vertical", 11),
    Sketcher.Constraint("Horizontal", 12),
    Sketcher.Constraint("Vertical", 15),
    Sketcher.Constraint("Horizontal", 18),
    Sketcher.Constraint("Vertical", 21),
    Sketcher.Constraint("Horizontal", 24),
    Sketcher.Constraint("Vertical", 27),
    Sketcher.Constraint("Horizontal", 30),
    Sketcher.Constraint("Vertical", 33),
    Sketcher.Constraint("Horizontal", 36),
    Sketcher.Constraint("Vertical", 39),
    Sketcher.Constraint("Horizontal", 42),
    Sketcher.Constraint("Vertical", 45),
    Sketcher.Constraint("Symmetric", 18, 2, 24, 2, -1, 1),
    Sketcher.Constraint("Symmetric", 19, 2, 25, 2, -1, 1),
    Sketcher.Constraint("Symmetric", 20, 2, 26, 2, -1, 1),
    Sketcher.Constraint("Symmetric", 22, 2, 28, 2, -1, 1),
    Sketcher.Constraint("Symmetric", 23, 2, 29, 2, -1, 1),
    Sketcher.Constraint("Symmetric", 13, 2, 31, 2, -1, 1),
    Sketcher.Constraint("Symmetric", 14, 2, 32, 2, -1, 1),
    Sketcher.Constraint("Symmetric", 16, 2, 34, 2, -1, 1),
    Sketcher.Constraint("Symmetric", 2, 2, 36, 2, -1, 1),
    Sketcher.Constraint("Symmetric", 3, 2, 37, 2, -1, 1),
    Sketcher.Constraint("Symmetric", 4, 2, 38, 2, -1, 1),
    Sketcher.Constraint("Symmetric", 6, 2, 40, 2, -1, 1),
    Sketcher.Constraint("Symmetric", 7, 2, 41, 2, -1, 1),
    Sketcher.Constraint("Symmetric", 9, 2, 43, 2, -1, 1),
    Sketcher.Constraint("Symmetric", 10, 2, 44, 2, -1, 1),
    Sketcher.Constraint("Symmetric", 0, 2, 46, 2, -1, 1),
    Sketcher.Constraint("Symmetric", 7, 2, 24, 2, -2),
    Sketcher.Constraint("Symmetric", 6, 2, 25, 2, -2),
    Sketcher.Constraint("Symmetric", 5, 2, 26, 2, -2),
    Sketcher.Constraint("Symmetric", 3, 2, 28, 2, -2),
    Sketcher.Constraint("Symmetric", 2, 2, 29, 2, -2),
    Sketcher.Constraint("Symmetric", 0, 2, 31, 2, -2),
    Sketcher.Constraint("Symmetric", 11, 2, 32, 2, -2),
    Sketcher.Constraint("Symmetric", 9, 2, 34, 2, -2),
    Sketcher.Constraint("Perpendicular", 0, 3),
    Sketcher.Constraint("Perpendicular", 1, 4),
    Sketcher.Constraint("Perpendicular", 3, 6),
    Sketcher.Constraint("Perpendicular", 4, 7),
    Sketcher.Constraint("Perpendicular", 6, 9),
    Sketcher.Constraint("Perpendicular", 7, 10),
    Sketcher.Constraint("Parallel", 9, 13),
    Sketcher.Constraint("Parallel", 10, 14),
    Sketcher.Constraint("Perpendicular", 13, 16),
    Sketcher.Constraint("Perpendicular", 14, 17),
    Sketcher.Constraint("Perpendicular", 19, 22),
    Sketcher.Constraint("Perpendicular", 25, 28),
    Sketcher.Constraint("Perpendicular", 28, 31),
    Sketcher.Constraint("Perpendicular", 31, 34),
    Sketcher.Constraint("Perpendicular", 32, 35),
    Sketcher.Constraint("Perpendicular", 37, 40),
    Sketcher.Constraint("Perpendicular", 40, 43),
    Sketcher.Constraint("Perpendicular", 43, 46),
    Sketcher.Constraint("Perpendicular", 44, 47),
    Sketcher.Constraint("Horizontal", 0, 2, 3, 2),
    Sketcher.Constraint("Horizontal", 6, 2, 9, 2),
    Sketcher.Constraint("Horizontal", 5, 2, 10, 2),
    Sketcher.Constraint("Horizontal", 4, 2, 11, 2),
    Sketcher.Constraint("Vertical", 3, 2, 6, 2),
    Sketcher.Constraint("Vertical", 2, 2, 7, 2),
    Sketcher.Constraint("Equal", 42, 5),
    Sketcher.Constraint("Equal", 0, 1),
    Sketcher.Constraint("DistanceY", 12, 2, 8, 2, 130.0),
    Sketcher.Constraint("DistanceY", 7, 2, 2, 2, 11.5),
    Sketcher.Constraint("Angle", 0, Q("60.0003 deg")),
    Sketcher.Constraint("DistanceX", 5, 2, 26, 2, 68.5),
    Sketcher.Constraint("DistanceX", 0, 2, 2, 2, 5.75),
])
pocket3 = doc.addObject("PartDesign::Pocket", "Pocket002")
body.addObject(pocket3)
pocket3.Profile = sketch6
pocket3.Length = 5.5
pocket3.Reversed = True

# Sketch on XZ plane
sketch7 = doc.addObject("Sketcher::SketchObject", "Sketch006")
body.addObject(sketch7)
sketch7.AttachmentSupport = (doc.XZ_Plane, [""])
sketch7.MapMode = "FlatFace"
sketch7.AttachmentOffset = App.Placement(V(0, 0, -49.5), App.Rotation())
sketch7.addGeometry([
    Part.Circle(V(-40, 65, 0), V(0, 0, 1), 3.2),
    Part.Circle(V(-40, -65, 0), V(0, 0, 1), 3.2),
    Part.Circle(V(40, 65, 0), V(0, 0, 1), 3.2),
    Part.Circle(V(40, -65, 0), V(0, 0, 1), 3.2),
], False)
sketch7.addConstraint([
    Sketcher.Constraint("Equal", 0, 1),
    Sketcher.Constraint("Equal", 1, 2),
    Sketcher.Constraint("Equal", 2, 3),
    Sketcher.Constraint("Symmetric", 1, 3, 2, 3, -1, 1),
    Sketcher.Constraint("Symmetric", 0, 3, 3, 3, -1, 1),
    Sketcher.Constraint("Symmetric", 0, 3, 2, 3, -2),
    Sketcher.Constraint("Diameter", 0, 6.5),
    Sketcher.Constraint("DistanceY", 1, 3, 0, 3, 130.0),
    Sketcher.Constraint("DistanceX", 0, 3, 2, 3, 80.0),
])
pocket4 = doc.addObject("PartDesign::Pocket", "Pocket003")
body.addObject(pocket4)
pocket4.Profile = sketch7
pocket4.Type = "ThroughAll"
pocket4.Reversed = True
doc.recompute()

fillet = doc.addObject("PartDesign::Fillet", "Fillet")
body.addObject(fillet)
fillet.Base = (pocket4, edges_at(pocket4, [
    (50, 27.5, 75),
    (-50, 27.5, 75),
    (50, 27.5, -75),
    (-50, 27.5, -75),
]))
fillet.Radius = 4
doc.recompute()

chamfer = doc.addObject("PartDesign::Chamfer", "Chamfer")
body.addObject(chamfer)
chamfer.Base = (fillet, edges_at(fillet, [
    (0, 0, 75),
    (48.828, 0, 73.828),
    (50, 0, 0),
    (48.828, 0, -73.828),
    (0, 0, -75),
    (-48.828, 0, -73.828),
    (-50, 0, 0),
    (-48.828, 0, 73.828),
]))
chamfer.Size = 1

doc.recompute()
